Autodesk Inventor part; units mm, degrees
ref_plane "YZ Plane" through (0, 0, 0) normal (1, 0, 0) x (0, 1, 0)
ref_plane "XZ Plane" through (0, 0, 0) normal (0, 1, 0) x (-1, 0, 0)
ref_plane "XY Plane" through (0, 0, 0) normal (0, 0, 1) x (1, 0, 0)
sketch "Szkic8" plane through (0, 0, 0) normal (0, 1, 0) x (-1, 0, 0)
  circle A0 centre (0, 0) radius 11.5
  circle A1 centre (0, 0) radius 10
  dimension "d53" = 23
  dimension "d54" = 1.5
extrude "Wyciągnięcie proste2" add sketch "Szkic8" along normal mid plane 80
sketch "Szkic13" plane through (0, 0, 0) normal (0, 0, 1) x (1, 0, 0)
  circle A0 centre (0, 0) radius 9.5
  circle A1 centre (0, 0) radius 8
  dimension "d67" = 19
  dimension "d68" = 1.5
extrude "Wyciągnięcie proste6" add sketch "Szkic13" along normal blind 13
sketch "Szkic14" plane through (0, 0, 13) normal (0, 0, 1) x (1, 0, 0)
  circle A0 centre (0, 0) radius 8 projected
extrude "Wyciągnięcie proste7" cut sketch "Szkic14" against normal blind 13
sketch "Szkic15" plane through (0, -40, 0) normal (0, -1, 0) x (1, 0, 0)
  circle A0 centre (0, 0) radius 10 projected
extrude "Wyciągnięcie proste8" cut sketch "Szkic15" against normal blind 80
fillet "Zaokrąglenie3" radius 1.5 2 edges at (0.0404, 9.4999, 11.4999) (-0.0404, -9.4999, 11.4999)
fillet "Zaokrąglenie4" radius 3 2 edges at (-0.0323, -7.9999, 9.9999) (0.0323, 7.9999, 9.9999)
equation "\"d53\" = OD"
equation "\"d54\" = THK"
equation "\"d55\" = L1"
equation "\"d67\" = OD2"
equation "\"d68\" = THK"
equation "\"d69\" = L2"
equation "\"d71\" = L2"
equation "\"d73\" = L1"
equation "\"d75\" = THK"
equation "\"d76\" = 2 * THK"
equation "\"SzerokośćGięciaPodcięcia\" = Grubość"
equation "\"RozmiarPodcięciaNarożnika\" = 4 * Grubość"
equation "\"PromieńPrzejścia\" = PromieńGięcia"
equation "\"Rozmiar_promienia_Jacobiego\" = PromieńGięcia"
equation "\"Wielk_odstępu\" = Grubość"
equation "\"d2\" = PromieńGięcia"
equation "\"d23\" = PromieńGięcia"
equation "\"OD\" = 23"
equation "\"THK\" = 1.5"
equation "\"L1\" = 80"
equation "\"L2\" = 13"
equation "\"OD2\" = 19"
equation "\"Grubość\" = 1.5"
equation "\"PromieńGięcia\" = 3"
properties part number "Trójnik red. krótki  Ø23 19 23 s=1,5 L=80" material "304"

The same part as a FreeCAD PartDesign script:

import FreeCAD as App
import Part
import Sketcher
from FreeCAD import Vector
Q = App.Units.Quantity


def edges_at(feature, points):
    """Names of the edges that pass closest to the given points."""
    edges = feature.Shape.Edges
    near = lambda p: min(range(len(edges)), key=lambda i: edges[i].distToShape(Part.Vertex(*p))[0])
    return sorted({f"Edge{near(p) + 1}" for p in points})

doc = App.newDocument("Part")
body = doc.addObject("PartDesign::Body", "Body")

sketch1 = body.newObject("Sketcher::SketchObject", "Sketch")
sketch1.AttachmentSupport = (doc.getObject("XZ_Plane"), [""])
sketch1.MapMode = "FlatFace"
sketch1.addGeometry([
    Part.Circle(Vector(0, 0, 0), Vector(0, 0, 1), 12),
    Part.Circle(Vector(0, 0, 0), Vector(0, 0, 1), 10),
], False)
sketch1.addConstraint([
    Sketcher.Constraint("Coincident", 0, 3, -1, 1),
    Sketcher.Constraint("Coincident", 1, 3, -1, 1),
    Sketcher.Constraint("Diameter", 0, Q("23 mm")),
    Sketcher.Constraint("Diameter", 1, Q("20 mm")),
])
pad1 = body.newObject("PartDesign::Pad", "Pad")
pad1.Profile = sketch1
pad1.Length = 80
pad1.Midplane = True

sketch2 = body.newObject("Sketcher::SketchObject", "Sketch001")
sketch2.AttachmentSupport = (doc.getObject("XY_Plane"), [""])
sketch2.MapMode = "FlatFace"
sketch2.addGeometry([
    Part.Circle(Vector(0, 0, 0), Vector(0, 0, 1), 10),
    Part.Circle(Vector(0, 0, 0), Vector(0, 0, 1), 8),
], False)
sketch2.addConstraint([
    Sketcher.Constraint("Coincident", 0, 3, -1, 1),
    Sketcher.Constraint("Coincident", 1, 3, -1, 1),
    Sketcher.Constraint("Diameter", 0, Q("19 mm")),
    Sketcher.Constraint("Diameter", 1, Q("16 mm")),
])
pad2 = body.newObject("PartDesign::Pad", "Pad001")
pad2.Profile = sketch2
pad2.Length = 13

sketch3 = body.newObject("Sketcher::SketchObject", "Sketch002")
sketch3.AttachmentSupport = (doc.getObject("XY_Plane"), [""])
sketch3.MapMode = "FlatFace"
sketch3.AttachmentOffset = App.Placement(Vector(0, 0, 13), App.Rotation())
sketch3.addGeometry(Part.Circle(Vector(0, 0, 0), Vector(0, 0, 1), 8), False)
sketch3.addConstraint([
    Sketcher.Constraint("Coincident", 0, 3, -1, 1),
    Sketcher.Constraint("Diameter", 0, Q("16 mm")),
])
pocket1 = body.newObject("PartDesign::Pocket", "Pocket")
pocket1.Profile = sketch3
pocket1.Length = 13

sketch4 = body.newObject("Sketcher::SketchObject", "Sketch003")
sketch4.AttachmentSupport = (doc.getObject("XZ_Plane"), [""])
sketch4.MapMode = "FlatFace"
sketch4.AttachmentOffset = App.Placement(Vector(0, 0, 40), App.Rotation())
sketch4.addGeometry(Part.Circle(Vector(0, 0, 0), Vector(0, 0, 1), 10), False)
sketch4.addConstraint([
    Sketcher.Constraint("Coincident", 0, 3, -1, 1),
    Sketcher.Constraint("Diameter", 0, Q("20 mm")),
])
pocket2 = body.newObject("PartDesign::Pocket", "Pocket001")
pocket2.Profile = sketch4
pocket2.Length = 80
doc.recompute()

fillet = body.newObject("PartDesign::Fillet", "Fillet")
fillet.Base = (pocket2, edges_at(pocket2, [(0.04, 9.5, 11.5), (-0.04, -9.5, 11.5)]))
fillet.Radius = 1.5
doc.recompute()

fillet2 = body.newObject("PartDesign::Fillet", "Fillet001")
fillet2.Base = (fillet, edges_at(fillet, [(-0.032, -8, 10), (0.032, 8, 10)]))
fillet2.Radius = 3

doc.recompute()
